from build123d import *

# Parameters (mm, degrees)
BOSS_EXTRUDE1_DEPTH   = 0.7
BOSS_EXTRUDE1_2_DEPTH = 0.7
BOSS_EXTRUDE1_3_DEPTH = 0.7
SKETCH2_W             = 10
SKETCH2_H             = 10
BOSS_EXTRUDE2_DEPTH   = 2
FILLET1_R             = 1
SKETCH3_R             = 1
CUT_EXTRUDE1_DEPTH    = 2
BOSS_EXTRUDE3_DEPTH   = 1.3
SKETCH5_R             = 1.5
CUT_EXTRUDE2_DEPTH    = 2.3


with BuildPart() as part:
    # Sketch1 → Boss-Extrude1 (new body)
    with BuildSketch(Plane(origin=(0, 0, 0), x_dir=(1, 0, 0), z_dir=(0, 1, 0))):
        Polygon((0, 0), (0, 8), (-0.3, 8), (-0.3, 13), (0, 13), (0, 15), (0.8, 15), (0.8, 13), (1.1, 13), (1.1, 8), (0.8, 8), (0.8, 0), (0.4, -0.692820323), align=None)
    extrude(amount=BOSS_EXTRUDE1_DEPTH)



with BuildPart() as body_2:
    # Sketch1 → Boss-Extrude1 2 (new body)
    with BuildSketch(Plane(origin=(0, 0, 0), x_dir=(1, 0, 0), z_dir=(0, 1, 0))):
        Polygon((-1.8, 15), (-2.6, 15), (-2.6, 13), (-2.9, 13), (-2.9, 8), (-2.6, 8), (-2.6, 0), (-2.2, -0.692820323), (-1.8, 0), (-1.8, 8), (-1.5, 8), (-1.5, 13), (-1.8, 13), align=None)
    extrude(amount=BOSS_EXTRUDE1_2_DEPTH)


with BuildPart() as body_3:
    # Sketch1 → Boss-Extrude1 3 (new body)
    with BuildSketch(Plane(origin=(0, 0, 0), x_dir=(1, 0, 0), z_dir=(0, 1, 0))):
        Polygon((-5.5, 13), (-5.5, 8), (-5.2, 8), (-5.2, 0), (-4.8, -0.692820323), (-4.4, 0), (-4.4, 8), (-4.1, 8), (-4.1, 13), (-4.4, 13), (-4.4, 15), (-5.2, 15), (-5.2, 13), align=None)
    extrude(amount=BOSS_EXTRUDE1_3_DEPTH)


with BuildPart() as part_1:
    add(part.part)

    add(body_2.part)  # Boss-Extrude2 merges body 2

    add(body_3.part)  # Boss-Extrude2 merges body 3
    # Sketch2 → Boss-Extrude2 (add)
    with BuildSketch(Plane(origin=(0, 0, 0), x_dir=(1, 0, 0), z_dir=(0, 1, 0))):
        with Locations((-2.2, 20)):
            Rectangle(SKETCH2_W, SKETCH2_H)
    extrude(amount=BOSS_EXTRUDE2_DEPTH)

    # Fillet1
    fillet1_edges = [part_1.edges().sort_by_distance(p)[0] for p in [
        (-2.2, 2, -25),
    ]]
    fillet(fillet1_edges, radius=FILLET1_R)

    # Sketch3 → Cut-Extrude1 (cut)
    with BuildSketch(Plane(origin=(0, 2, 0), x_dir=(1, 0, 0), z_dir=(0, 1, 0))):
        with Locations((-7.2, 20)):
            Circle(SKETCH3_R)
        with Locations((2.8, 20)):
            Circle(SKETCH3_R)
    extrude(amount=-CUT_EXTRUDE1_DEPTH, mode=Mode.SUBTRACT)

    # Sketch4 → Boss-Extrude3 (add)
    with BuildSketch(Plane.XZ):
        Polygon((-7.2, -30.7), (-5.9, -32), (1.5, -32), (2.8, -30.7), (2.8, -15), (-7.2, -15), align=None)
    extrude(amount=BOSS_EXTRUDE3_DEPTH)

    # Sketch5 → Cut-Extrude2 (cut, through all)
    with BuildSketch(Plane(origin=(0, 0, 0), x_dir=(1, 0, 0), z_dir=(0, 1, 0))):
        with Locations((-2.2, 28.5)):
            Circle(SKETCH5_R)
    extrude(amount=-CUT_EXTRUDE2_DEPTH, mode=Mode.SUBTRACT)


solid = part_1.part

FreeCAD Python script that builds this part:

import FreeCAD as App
import Part
import Sketcher
from FreeCAD import Vector
Q = App.Units.Quantity


def edges_at(feature, points):
    """Names of the edges that pass closest to the given points."""
    edges = feature.Shape.Edges
    near = lambda p: min(range(len(edges)), key=lambda i: edges[i].distToShape(Part.Vertex(*p))[0])
    return sorted({f"Edge{near(p) + 1}" for p in points})

doc = App.newDocument("Part")
body = doc.addObject("PartDesign::Body", "Body")

sketch1 = body.newObject("Sketcher::SketchObject", "Sketch")
sketch1.AttachmentSupport = (doc.getObject("XZ_Plane"), [""])
sketch1.MapMode = "FlatFace"
sketch1.addGeometry(Part.LineSegment(Vector(0, -8, 0), Vector(0, 0, 0)), False)
sketch1.addGeometry(Part.LineSegment(Vector(0, 0, 0), Vector(0.4, 0.69282, 0)), False)
sketch1.addGeometry(Part.LineSegment(Vector(0.4, 0.69282, 0), Vector(0.8, 0, 0)), False)
sketch1.addGeometry(Part.LineSegment(Vector(0.8, 0, 0), Vector(0.8, -8, 0)), False)
sketch1.addGeometry(Part.LineSegment(Vector(0.8, -8, 0), Vector(1.1, -8, 0)), False)
sketch1.addGeometry(Part.LineSegment(Vector(1.1, -8, 0), Vector(1.1, -13, 0)), False)
sketch1.addGeometry(Part.LineSegment(Vector(1.1, -13, 0), Vector(0.8, -13, 0)), False)
sketch1.addGeometry(Part.LineSegment(Vector(0.8, -13, 0), Vector(0.8, -15, 0)), False)
sketch1.addGeometry(Part.LineSegment(Vector(0.8, -15, 0), Vector(0, -15, 0)), False)
sketch1.addGeometry(Part.LineSegment(Vector(0, -15, 0), Vector(0, -13, 0)), False)
sketch1.addGeometry(Part.LineSegment(Vector(0, -13, 0), Vector(-0.3, -13, 0)), False)
sketch1.addGeometry(Part.LineSegment(Vector(-0.3, -13, 0), Vector(-0.3, -8, 0)), False)
sketch1.addGeometry(Part.LineSegment(Vector(-0.3, -8, 0), Vector(0, -8, 0)), False)
sketch1.addConstraint(Sketcher.Constraint("Coincident", 0, 2, 1, 1))
sketch1.addConstraint(Sketcher.Constraint("Coincident", 1, 2, 2, 1))
sketch1.addConstraint(Sketcher.Constraint("Coincident", 2, 2, 3, 1))
sketch1.addConstraint(Sketcher.Constraint("Coincident", 3, 2, 4, 1))
sketch1.addConstraint(Sketcher.Constraint("Coincident", 4, 2, 5, 1))
sketch1.addConstraint(Sketcher.Constraint("Coincident", 5, 2, 6, 1))
sketch1.addConstraint(Sketcher.Constraint("Coincident", 6, 2, 7, 1))
sketch1.addConstraint(Sketcher.Constraint("Coincident", 7, 2, 8, 1))
sketch1.addConstraint(Sketcher.Constraint("Coincident", 8, 2, 9, 1))
sketch1.addConstraint(Sketcher.Constraint("Coincident", 9, 2, 10, 1))
sketch1.addConstraint(Sketcher.Constraint("Coincident", 10, 2, 11, 1))
sketch1.addConstraint(Sketcher.Constraint("Coincident", 11, 2, 12, 1))
sketch1.addConstraint(Sketcher.Constraint("Coincident", 12, 2, 0, 1))
sketch1.addConstraint(Sketcher.Constraint("Vertical", 0))
sketch1.addConstraint(Sketcher.Constraint("Vertical", 3))
sketch1.addConstraint(Sketcher.Constraint("Horizontal", 4))
sketch1.addConstraint(Sketcher.Constraint("Vertical", 5))
sketch1.addConstraint(Sketcher.Constraint("Horizontal", 6))
sketch1.addConstraint(Sketcher.Constraint("Vertical", 7))
sketch1.addConstraint(Sketcher.Constraint("Horizontal", 8))
sketch1.addConstraint(Sketcher.Constraint("Vertical", 9))
sketch1.addConstraint(Sketcher.Constraint("Horizontal", 10))
sketch1.addConstraint(Sketcher.Constraint("Vertical", 11))
sketch1.addConstraint(Sketcher.Constraint("Horizontal", 12))
sketch1.addConstraint(Sketcher.Constraint("Coincident", 0, 2, -1, 1))
sketch1.addConstraint(Sketcher.Constraint("PointOnObject", 2, 2, -1))
sketch1.addConstraint(Sketcher.Constraint("PointOnObject", 8, 2, -2))
sketch1.addConstraint(Sketcher.Constraint("Horizontal", 6, 2, 9, 2))
sketch1.addConstraint(Sketcher.Constraint("Horizontal", 4, 2, 11, 2))
sketch1.addConstraint(Sketcher.Constraint("Vertical", 3, 2, 6, 2))
sketch1.addConstraint(Sketcher.Constraint("Equal", 6, 10))
sketch1.addConstraint(Sketcher.Constraint("Equal", 1, 2))
sketch1.addConstraint(Sketcher.Constraint("DistanceY", 0, 1, 0, 2, Q("8 mm")))
sketch1.addConstraint(Sketcher.Constraint("DistanceY", 5, 2, 5, 1, Q("5 mm")))
sketch1.addConstraint(Sketcher.Constraint("DistanceY", 7, 2, 7, 1, Q("2 mm")))
sketch1.addConstraint(Sketcher.Constraint("Angle", 1, Q("60 deg")))
sketch1.addConstraint(Sketcher.Constraint("DistanceX", 4, 1, 4, 2, Q("0.3 mm")))
sketch1.addConstraint(Sketcher.Constraint("DistanceX", 8, 2, 8, 1, Q("0.8 mm")))
pad1 = body.newObject("PartDesign::Pad", "Pad")
pad1.Profile = sketch1
pad1.Length = 0.7
pad1.Reversed = True
body2 = doc.addObject("PartDesign::Body", "Body001")

sketch2 = body2.newObject("Sketcher::SketchObject", "Sketch001")
sketch2.AttachmentSupport = (doc.getObject("XZ_Plane001"), [""])
sketch2.MapMode = "FlatFace"
sketch2.addGeometry(Part.LineSegment(Vector(-1.8, -15, 0), Vector(-2.6, -15, 0)), False)
sketch2.addGeometry(Part.LineSegment(Vector(-2.6, -15, 0), Vector(-2.6, -13, 0)), False)
sketch2.addGeometry(Part.LineSegment(Vector(-2.6, -13, 0), Vector(-2.9, -13, 0)), False)
sketch2.addGeometry(Part.LineSegment(Vector(-2.9, -13, 0), Vector(-2.9, -8, 0)), False)
sketch2.addGeometry(Part.LineSegment(Vector(-2.9, -8, 0), Vector(-2.6, -8, 0)), False)
sketch2.addGeometry(Part.LineSegment(Vector(-2.6, -8, 0), Vector(-2.6, 0, 0)), False)
sketch2.addGeometry(Part.LineSegment(Vector(-2.6, 0, 0), Vector(-2.2, 0.69282, 0)), False)
sketch2.addGeometry(Part.LineSegment(Vector(-2.2, 0.69282, 0), Vector(-1.8, 0, 0)), False)
sketch2.addGeometry(Part.LineSegment(Vector(-1.8, 0, 0), Vector(-1.8, -8, 0)), False)
sketch2.addGeometry(Part.LineSegment(Vector(-1.8, -8, 0), Vector(-1.5, -8, 0)), False)
sketch2.addGeometry(Part.LineSegment(Vector(-1.5, -8, 0), Vector(-1.5, -13, 0)), False)
sketch2.addGeometry(Part.LineSegment(Vector(-1.5, -13, 0), Vector(-1.8, -13, 0)), False)
sketch2.addGeometry(Part.LineSegment(Vector(-1.8, -13, 0), Vector(-1.8, -15, 0)), False)
sketch2.addConstraint(Sketcher.Constraint("Coincident", 0, 2, 1, 1))
sketch2.addConstraint(Sketcher.Constraint("Coincident", 1, 2, 2, 1))
sketch2.addConstraint(Sketcher.Constraint("Coincident", 2, 2, 3, 1))
sketch2.addConstraint(Sketcher.Constraint("Coincident", 3, 2, 4, 1))
sketch2.addConstraint(Sketcher.Constraint("Coincident", 4, 2, 5, 1))
sketch2.addConstraint(Sketcher.Constraint("Coincident", 5, 2, 6, 1))
sketch2.addConstraint(Sketcher.Constraint("Coincident", 6, 2, 7, 1))
sketch2.addConstraint(Sketcher.Constraint("Coincident", 7, 2, 8, 1))
sketch2.addConstraint(Sketcher.Constraint("Coincident", 8, 2, 9, 1))
sketch2.addConstraint(Sketcher.Constraint("Coincident", 9, 2, 10, 1))
sketch2.addConstraint(Sketcher.Constraint("Coincident", 10, 2, 11, 1))
sketch2.addConstraint(Sketcher.Constraint("Coincident", 11, 2, 12, 1))
sketch2.addConstraint(Sketcher.Constraint("Coincident", 12, 2, 0, 1))
sketch2.addConstraint(Sketcher.Constraint("Horizontal", 0))
sketch2.addConstraint(Sketcher.Constraint("Vertical", 1))
sketch2.addConstraint(Sketcher.Constraint("Horizontal", 2))
sketch2.addConstraint(Sketcher.Constraint("Vertical", 3))
sketch2.addConstraint(Sketcher.Constraint("Horizontal", 4))
sketch2.addConstraint(Sketcher.Constraint("Vertical", 5))
sketch2.addConstraint(Sketcher.Constraint("Vertical", 8))
sketch2.addConstraint(Sketcher.Constraint("Horizontal", 9))
sketch2.addConstraint(Sketcher.Constraint("Vertical", 10))
sketch2.addConstraint(Sketcher.Constraint("Horizontal", 11))
sketch2.addConstraint(Sketcher.Constraint("Vertical", 12))
sketch2.addConstraint(Sketcher.Constraint("PointOnObject", 5, 2, -1))
sketch2.addConstraint(Sketcher.Constraint("PointOnObject", 7, 2, -1))
sketch2.addConstraint(Sketcher.Constraint("Horizontal", 4, 2, 8, 2))
sketch2.addConstraint(Sketcher.Constraint("Horizontal", 2, 2, 10, 2))
sketch2.addConstraint(Sketcher.Constraint("Vertical", 1, 2, 4, 2))
sketch2.addConstraint(Sketcher.Constraint("Vertical", 8, 2, 11, 2))
sketch2.addConstraint(Sketcher.Constraint("Equal", 4, 9))
sketch2.addConstraint(Sketcher.Constraint("Equal", 6, 7))
sketch2.addConstraint(Sketcher.Constraint("DistanceY", 1, 1, 1, 2, Q("2 mm")))
sketch2.addConstraint(Sketcher.Constraint("DistanceY", 3, 1, 3, 2, Q("5 mm")))
sketch2.addConstraint(Sketcher.Constraint("DistanceY", 5, 1, 5, 2, Q("8 mm")))
sketch2.addConstraint(Sketcher.Constraint("Angle", 6, Q("60 deg")))
sketch2.addConstraint(Sketcher.Constraint("DistanceX", 0, 2, 0, 1, Q("0.8 mm")))
sketch2.addConstraint(Sketcher.Constraint("DistanceX", 2, 2, 2, 1, Q("0.3 mm")))
sketch2.addConstraint(Sketcher.Constraint("DistanceX", 0, 2, -1, 1, Q("2.6 mm")))
pad2 = body2.newObject("PartDesign::Pad", "Pad001")
pad2.Profile = sketch2
pad2.Length = 0.7
pad2.Reversed = True
body3 = doc.addObject("PartDesign::Body", "Body002")

sketch3 = body3.newObject("Sketcher::SketchObject", "Sketch002")
sketch3.AttachmentSupport = (doc.getObject("XZ_Plane002"), [""])
sketch3.MapMode = "FlatFace"
sketch3.addGeometry(Part.LineSegment(Vector(-5.5, -13, 0), Vector(-5.5, -8, 0)), False)
sketch3.addGeometry(Part.LineSegment(Vector(-5.5, -8, 0), Vector(-5.2, -8, 0)), False)
sketch3.addGeometry(Part.LineSegment(Vector(-5.2, -8, 0), Vector(-5.2, 0, 0)), False)
sketch3.addGeometry(Part.LineSegment(Vector(-5.2, 0, 0), Vector(-4.8, 0.69282, 0)), False)
sketch3.addGeometry(Part.LineSegment(Vector(-4.8, 0.69282, 0), Vector(-4.4, 0, 0)), False)
sketch3.addGeometry(Part.LineSegment(Vector(-4.4, 0, 0), Vector(-4.4, -8, 0)), False)
sketch3.addGeometry(Part.LineSegment(Vector(-4.4, -8, 0), Vector(-4.1, -8, 0)), False)
sketch3.addGeometry(Part.LineSegment(Vector(-4.1, -8, 0), Vector(-4.1, -13, 0)), False)
sketch3.addGeometry(Part.LineSegment(Vector(-4.1, -13, 0), Vector(-4.4, -13, 0)), False)
sketch3.addGeometry(Part.LineSegment(Vector(-4.4, -13, 0), Vector(-4.4, -15, 0)), False)
sketch3.addGeometry(Part.LineSegment(Vector(-4.4, -15, 0), Vector(-5.2, -15, 0)), False)
sketch3.addGeometry(Part.LineSegment(Vector(-5.2, -15, 0), Vector(-5.2, -13, 0)), False)
sketch3.addGeometry(Part.LineSegment(Vector(-5.2, -13, 0), Vector(-5.5, -13, 0)), False)
sketch3.addConstraint(Sketcher.Constraint("Coincident", 0, 2, 1, 1))
sketch3.addConstraint(Sketcher.Constraint("Coincident", 1, 2, 2, 1))
sketch3.addConstraint(Sketcher.Constraint("Coincident", 2, 2, 3, 1))
sketch3.addConstraint(Sketcher.Constraint("Coincident", 3, 2, 4, 1))
sketch3.addConstraint(Sketcher.Constraint("Coincident", 4, 2, 5, 1))
sketch3.addConstraint(Sketcher.Constraint("Coincident", 5, 2, 6, 1))
sketch3.addConstraint(Sketcher.Constraint("Coincident", 6, 2, 7, 1))
sketch3.addConstraint(Sketcher.Constraint("Coincident", 7, 2, 8, 1))
sketch3.addConstraint(Sketcher.Constraint("Coincident", 8, 2, 9, 1))
sketch3.addConstraint(Sketcher.Constraint("Coincident", 9, 2, 10, 1))
sketch3.addConstraint(Sketcher.Constraint("Coincident", 10, 2, 11, 1))
sketch3.addConstraint(Sketcher.Constraint("Coincident", 11, 2, 12, 1))
sketch3.addConstraint(Sketcher.Constraint("Coincident", 12, 2, 0, 1))
sketch3.addConstraint(Sketcher.Constraint("Vertical", 0))
sketch3.addConstraint(Sketcher.Constraint("Horizontal", 1))
sketch3.addConstraint(Sketcher.Constraint("Vertical", 2))
sketch3.addConstraint(Sketcher.Constraint("Vertical", 5))
sketch3.addConstraint(Sketcher.Constraint("Horizontal", 6))
sketch3.addConstraint(Sketcher.Constraint("Vertical", 7))
sketch3.addConstraint(Sketcher.Constraint("Horizontal", 8))
sketch3.addConstraint(Sketcher.Constraint("Vertical", 9))
sketch3.addConstraint(Sketcher.Constraint("Horizontal", 10))
sketch3.addConstraint(Sketcher.Constraint("Vertical", 11))
sketch3.addConstraint(Sketcher.Constraint("Horizontal", 12))
sketch3.addConstraint(Sketcher.Constraint("PointOnObject", 2, 2, -1))
sketch3.addConstraint(Sketcher.Constraint("PointOnObject", 4, 2, -1))
sketch3.addConstraint(Sketcher.Constraint("Horizontal", 1, 2, 5, 2))
sketch3.addConstraint(Sketcher.Constraint("Horizontal", 8, 2, 11, 2))
sketch3.addConstraint(Sketcher.Constraint("Vertical", 5, 2, 8, 2))
sketch3.addConstraint(Sketcher.Constraint("Vertical", 2, 2, 10, 2))
sketch3.addConstraint(Sketcher.Constraint("Equal", 1, 6))
sketch3.addConstraint(Sketcher.Constraint("Equal", 3, 4))
sketch3.addConstraint(Sketcher.Constraint("DistanceY", 0, 1, 0, 2, Q("5 mm")))
sketch3.addConstraint(Sketcher.Constraint("DistanceY", 2, 1, 2, 2, Q("8 mm")))
sketch3.addConstraint(Sketcher.Constraint("DistanceY", 9, 2, 9, 1, Q("2 mm")))
sketch3.addConstraint(Sketcher.Constraint("Angle", 3, Q("60 deg")))
sketch3.addConstraint(Sketcher.Constraint("DistanceX", 1, 1, 1, 2, Q("0.3 mm")))
sketch3.addConstraint(Sketcher.Constraint("DistanceX", 10, 2, 10, 1, Q("0.8 mm")))
sketch3.addConstraint(Sketcher.Constraint("DistanceX", 0, 2, -1, 1, Q("5.5 mm")))
pad3 = body3.newObject("PartDesign::Pad", "Pad002")
pad3.Profile = sketch3
pad3.Length = 0.7
pad3.Reversed = True
body.AllowCompound = True
doc.recompute()

boolean = body.newObject("PartDesign::Boolean", "Boolean")
boolean.Type = "Fuse"
boolean.addObjects([body2])
doc.recompute()

boolean2 = body.newObject("PartDesign::Boolean", "Boolean001")
boolean2.Type = "Fuse"
boolean2.addObjects([body3])

sketch4 = body.newObject("Sketcher::SketchObject", "Sketch003")
sketch4.AttachmentSupport = (doc.getObject("XZ_Plane"), [""])
sketch4.MapMode = "FlatFace"
sketch4.addGeometry(Part.LineSegment(Vector(-7.2, -25, 0), Vector(-7.2, -15, 0)), False)
sketch4.addGeometry(Part.LineSegment(Vector(-7.2, -15, 0), Vector(2.8, -15, 0)), False)
sketch4.addGeometry(Part.LineSegment(Vector(2.8, -15, 0), Vector(2.8, -25, 0)), False)
sketch4.addGeometry(Part.LineSegment(Vector(2.8, -25, 0), Vector(-7.2, -25, 0)), False)
sketch4.addConstraint(Sketcher.Constraint("Coincident", 0, 2, 1, 1))
sketch4.addConstraint(Sketcher.Constraint("Coincident", 1, 2, 2, 1))
sketch4.addConstraint(Sketcher.Constraint("Coincident", 2, 2, 3, 1))
sketch4.addConstraint(Sketcher.Constraint("Coincident", 3, 2, 0, 1))
sketch4.addConstraint(Sketcher.Constraint("Vertical", 0))
sketch4.addConstraint(Sketcher.Constraint("Horizontal", 1))
sketch4.addConstraint(Sketcher.Constraint("Vertical", 2))
sketch4.addConstraint(Sketcher.Constraint("Horizontal", 3))
sketch4.addConstraint(Sketcher.Constraint("Equal", 3, 0))
sketch4.addConstraint(Sketcher.Constraint("DistanceX", 1, 1, 1, 2, Q("10 mm")))
sketch4.addConstraint(Sketcher.Constraint("DistanceY", 0, 2, -1, 1, Q("15 mm")))
sketch4.addConstraint(Sketcher.Constraint("DistanceX", 0, 2, -1, 1, Q("7.2 mm")))
pad4 = body.newObject("PartDesign::Pad", "Pad003")
pad4.Profile = sketch4
pad4.Length = 2
pad4.Reversed = True
doc.recompute()

fillet = body.newObject("PartDesign::Fillet", "Fillet")
fillet.Base = (pad4, edges_at(pad4, [(-2.2, 2, -25)]))
fillet.Radius = 1

sketch5 = body.newObject("Sketcher::SketchObject", "Sketch004")
sketch5.AttachmentSupport = (doc.getObject("XZ_Plane"), [""])
sketch5.MapMode = "FlatFace"
sketch5.AttachmentOffset = App.Placement(Vector(0, 0, -2), App.Rotation())
sketch5.addGeometry(Part.Circle(Vector(-7.2, -20, 0), Vector(0, 0, 1), 1), False)
sketch5.addGeometry(Part.Circle(Vector(2.8, -20, 0), Vector(0, 0, 1), 1), False)
sketch5.addConstraint(Sketcher.Constraint("Equal", 0, 1))
sketch5.addConstraint(Sketcher.Constraint("Horizontal", 0, 3, 1, 3))
sketch5.addConstraint(Sketcher.Constraint("Diameter", 0, Q("2 mm")))
sketch5.addConstraint(Sketcher.Constraint("DistanceY", 0, 3, -1, 1, Q("20 mm")))
sketch5.addConstraint(Sketcher.Constraint("DistanceX", 0, 3, 1, 3, Q("10 mm")))
sketch5.addConstraint(Sketcher.Constraint("DistanceX", 0, 3, -1, 1, Q("7.2 mm")))
pocket1 = body.newObject("PartDesign::Pocket", "Pocket")
pocket1.Profile = sketch5
pocket1.Length = 2
pocket1.Reversed = True

sketch6 = body.newObject("Sketcher::SketchObject", "Sketch005")
sketch6.AttachmentSupport = (doc.getObject("XZ_Plane"), [""])
sketch6.MapMode = "FlatFace"
sketch6.addGeometry(Part.LineSegment(Vector(-7.2, -30.7, 0), Vector(-5.9, -32, 0)), False)
sketch6.addGeometry(Part.LineSegment(Vector(-5.9, -32, 0), Vector(1.5, -32, 0)), False)
sketch6.addGeometry(Part.LineSegment(Vector(1.5, -32, 0), Vector(2.8, -30.7, 0)), False)
sketch6.addGeometry(Part.LineSegment(Vector(2.8, -30.7, 0), Vector(2.8, -15, 0)), False)
sketch6.addGeometry(Part.LineSegment(Vector(2.8, -15, 0), Vector(-7.2, -15, 0)), False)
sketch6.addGeometry(Part.LineSegment(Vector(-7.2, -15, 0), Vector(-7.2, -30.7, 0)), False)
sketch6.addConstraint(Sketcher.Constraint("Coincident", 0, 2, 1, 1))
sketch6.addConstraint(Sketcher.Constraint("Coincident", 1, 2, 2, 1))
sketch6.addConstraint(Sketcher.Constraint("Coincident", 2, 2, 3, 1))
sketch6.addConstraint(Sketcher.Constraint("Coincident", 3, 2, 4, 1))
sketch6.addConstraint(Sketcher.Constraint("Coincident", 4, 2, 5, 1))
sketch6.addConstraint(Sketcher.Constraint("Coincident", 5, 2, 0, 1))
sketch6.addConstraint(Sketcher.Constraint("Horizontal", 1))
sketch6.addConstraint(Sketcher.Constraint("Vertical", 3))
sketch6.addConstraint(Sketcher.Constraint("Horizontal", 4))
sketch6.addConstraint(Sketcher.Constraint("Vertical", 5))
sketch6.addConstraint(Sketcher.Constraint("Perpendicular", 0, 2))
sketch6.addConstraint(Sketcher.Constraint("Horizontal", 2, 2, 5, 2))
sketch6.addConstraint(Sketcher.Constraint("Equal", 0, 2))
sketch6.addConstraint(Sketcher.Constraint("DistanceX", 4, 2, 4, 1, Q("10 mm")))
sketch6.addConstraint(Sketcher.Constraint("DistanceX", 1, 1, 1, 2, Q("7.4 mm")))
sketch6.addConstraint(Sketcher.Constraint("DistanceY", 3, 1, 3, 2, Q("15.7 mm")))
sketch6.addConstraint(Sketcher.Constraint("DistanceY", 0, 2, -1, 1, Q("32 mm")))
sketch6.addConstraint(Sketcher.Constraint("DistanceX", 0, 2, -1, 1, Q("5.9 mm")))
pad5 = body.newObject("PartDesign::Pad", "Pad004")
pad5.Profile = sketch6
pad5.Length = 1.3

sketch7 = body.newObject("Sketcher::SketchObject", "Sketch006")
sketch7.AttachmentSupport = (doc.getObject("XZ_Plane"), [""])
sketch7.MapMode = "FlatFace"
sketch7.addGeometry(Part.Circle(Vector(-2.2, -28.5, 0), Vector(0, 0, 1), 1.5), False)
sketch7.addConstraint(Sketcher.Constraint("Diameter", 0, Q("3 mm")))
sketch7.addConstraint(Sketcher.Constraint("DistanceX", 0, 3, -1, 1, Q("2.2 mm")))
sketch7.addConstraint(Sketcher.Constraint("DistanceY", 0, 3, -1, 1, Q("28.5 mm")))
pocket2 = body.newObject("PartDesign::Pocket", "Pocket001")
pocket2.Profile = sketch7
pocket2.Type = "ThroughAll"
pocket2.Reversed = True

doc.recompute()
